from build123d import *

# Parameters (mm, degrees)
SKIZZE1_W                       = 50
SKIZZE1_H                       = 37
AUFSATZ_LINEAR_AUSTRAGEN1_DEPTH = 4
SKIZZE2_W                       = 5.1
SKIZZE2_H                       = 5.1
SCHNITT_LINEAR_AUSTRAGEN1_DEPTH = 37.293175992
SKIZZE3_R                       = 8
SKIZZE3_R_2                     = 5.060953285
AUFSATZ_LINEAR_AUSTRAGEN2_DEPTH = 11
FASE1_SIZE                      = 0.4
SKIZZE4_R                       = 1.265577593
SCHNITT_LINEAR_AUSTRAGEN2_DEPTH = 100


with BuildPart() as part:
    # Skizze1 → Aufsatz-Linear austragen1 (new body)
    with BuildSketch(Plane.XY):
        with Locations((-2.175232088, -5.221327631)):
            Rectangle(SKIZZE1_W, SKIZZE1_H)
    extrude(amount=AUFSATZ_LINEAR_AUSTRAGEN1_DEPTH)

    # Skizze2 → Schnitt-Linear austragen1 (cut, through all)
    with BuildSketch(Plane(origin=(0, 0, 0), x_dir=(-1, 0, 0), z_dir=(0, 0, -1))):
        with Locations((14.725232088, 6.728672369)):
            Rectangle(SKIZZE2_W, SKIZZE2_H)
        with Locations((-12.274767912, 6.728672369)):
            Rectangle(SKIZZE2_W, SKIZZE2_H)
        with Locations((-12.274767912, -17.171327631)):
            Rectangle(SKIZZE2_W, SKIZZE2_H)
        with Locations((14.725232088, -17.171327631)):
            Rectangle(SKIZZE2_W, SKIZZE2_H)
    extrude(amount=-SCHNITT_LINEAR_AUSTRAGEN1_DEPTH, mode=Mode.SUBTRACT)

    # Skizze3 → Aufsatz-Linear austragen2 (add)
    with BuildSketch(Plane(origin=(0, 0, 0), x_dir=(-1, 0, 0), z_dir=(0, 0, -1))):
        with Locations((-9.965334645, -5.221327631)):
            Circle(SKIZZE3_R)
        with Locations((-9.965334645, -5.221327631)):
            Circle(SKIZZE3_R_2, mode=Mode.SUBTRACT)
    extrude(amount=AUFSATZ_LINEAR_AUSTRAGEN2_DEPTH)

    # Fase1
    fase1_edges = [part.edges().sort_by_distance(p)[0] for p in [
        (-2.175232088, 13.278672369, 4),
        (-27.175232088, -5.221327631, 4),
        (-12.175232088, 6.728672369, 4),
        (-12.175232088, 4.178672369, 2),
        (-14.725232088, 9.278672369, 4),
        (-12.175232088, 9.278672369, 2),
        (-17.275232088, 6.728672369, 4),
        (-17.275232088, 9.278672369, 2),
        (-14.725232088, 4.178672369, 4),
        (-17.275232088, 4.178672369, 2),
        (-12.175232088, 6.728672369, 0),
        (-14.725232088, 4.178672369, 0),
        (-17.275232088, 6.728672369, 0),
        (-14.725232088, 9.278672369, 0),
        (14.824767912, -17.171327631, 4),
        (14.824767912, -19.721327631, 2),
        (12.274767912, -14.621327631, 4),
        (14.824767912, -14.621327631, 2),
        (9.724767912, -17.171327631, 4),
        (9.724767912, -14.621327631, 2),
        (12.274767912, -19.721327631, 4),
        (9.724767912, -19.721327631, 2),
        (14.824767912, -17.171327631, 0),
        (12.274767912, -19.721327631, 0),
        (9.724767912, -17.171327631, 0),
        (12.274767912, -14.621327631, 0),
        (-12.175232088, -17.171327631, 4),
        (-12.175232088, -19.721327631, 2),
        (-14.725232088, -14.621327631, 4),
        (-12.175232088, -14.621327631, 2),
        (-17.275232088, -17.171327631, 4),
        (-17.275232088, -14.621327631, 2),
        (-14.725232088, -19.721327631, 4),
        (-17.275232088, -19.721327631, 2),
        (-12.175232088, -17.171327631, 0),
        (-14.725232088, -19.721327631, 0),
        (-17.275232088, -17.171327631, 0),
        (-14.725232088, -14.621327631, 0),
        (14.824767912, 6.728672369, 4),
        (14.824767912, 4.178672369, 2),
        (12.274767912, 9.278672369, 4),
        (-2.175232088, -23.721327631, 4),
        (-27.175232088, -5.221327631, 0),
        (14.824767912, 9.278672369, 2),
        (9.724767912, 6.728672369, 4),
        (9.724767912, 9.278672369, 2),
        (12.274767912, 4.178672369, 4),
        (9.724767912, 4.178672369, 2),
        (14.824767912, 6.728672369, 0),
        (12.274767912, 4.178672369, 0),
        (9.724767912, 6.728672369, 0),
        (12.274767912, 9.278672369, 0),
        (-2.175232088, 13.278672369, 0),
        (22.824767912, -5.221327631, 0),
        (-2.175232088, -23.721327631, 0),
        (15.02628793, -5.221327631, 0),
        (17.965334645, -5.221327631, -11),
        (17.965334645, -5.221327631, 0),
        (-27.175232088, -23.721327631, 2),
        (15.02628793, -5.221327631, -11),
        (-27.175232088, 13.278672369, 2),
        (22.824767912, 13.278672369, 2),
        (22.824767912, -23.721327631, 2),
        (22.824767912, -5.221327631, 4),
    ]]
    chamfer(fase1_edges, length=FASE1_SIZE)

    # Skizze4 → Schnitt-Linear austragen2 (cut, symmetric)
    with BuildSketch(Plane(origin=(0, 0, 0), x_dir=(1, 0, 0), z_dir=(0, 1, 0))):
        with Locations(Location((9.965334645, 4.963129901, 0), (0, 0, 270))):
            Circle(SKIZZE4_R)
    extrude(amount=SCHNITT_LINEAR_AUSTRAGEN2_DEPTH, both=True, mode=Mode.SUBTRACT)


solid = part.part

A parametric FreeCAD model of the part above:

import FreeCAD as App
import Part
import Sketcher

V = App.Vector


def add_polygon(sketch, points):
    """Adds a closed chain of lines whose ends are joined by coincident constraints."""
    first, n = sketch.GeometryCount, len(points)
    for a, b in zip(points, points[1:] + points[:1]):
        sketch.addGeometry(Part.LineSegment(App.Vector(*a, 0), App.Vector(*b, 0)), False)
    for i in range(n):
        sketch.addConstraint(Sketcher.Constraint("Coincident", first + i, 2, first + (i + 1) % n, 1))

doc = App.newDocument("Part")
body = doc.addObject("PartDesign::Body", "Body")

# Sketch on XY plane
sketch1 = body.newObject("Sketcher::SketchObject", "Sketch")
sketch1.AttachmentSupport = (doc.getObject("XY_Plane"), [""])
sketch1.MapMode = "FlatFace"
add_polygon(sketch1, [(-27, 13), (-27, -24), (23, -24), (23, 13)])  # lines 0-3
sketch1.addConstraint([
    Sketcher.Constraint("Vertical", 0),
    Sketcher.Constraint("Horizontal", 1),
    Sketcher.Constraint("Vertical", 2),
    Sketcher.Constraint("Horizontal", 3),
    Sketcher.Constraint("DistanceX", 1, 1, 1, 2, 50.0),
    Sketcher.Constraint("DistanceY", 0, 2, 0, 1, 37.0),
    Sketcher.Constraint("DistanceX", 0, 2, -1, 1, 27.175232),
    Sketcher.Constraint("DistanceY", 0, 2, -1, 1, 23.721328),
])
pad1 = body.newObject("PartDesign::Pad", "Pad")
pad1.Profile = sketch1
pad1.Length = 4

# Sketch on XY plane
sketch2 = body.newObject("Sketcher::SketchObject", "Sketch001")
sketch2.AttachmentSupport = (doc.getObject("XY_Plane"), [""])
sketch2.MapMode = "FlatFace"
add_polygon(sketch2, [(-12, 9), (-12, 4), (-17, 4), (-17, 9)])  # lines 0-3
add_polygon(sketch2, [(15, 9), (15, 4), (10, 4), (10, 9)])  # lines 4-7
add_polygon(sketch2, [(15, -15), (15, -20), (10, -20), (10, -15)])  # lines 8-11
add_polygon(sketch2, [(-12, -15), (-12, -20), (-17, -20), (-17, -15)])  # lines 12-15
sketch2.addConstraint([
    Sketcher.Constraint("Vertical", 0),
    Sketcher.Constraint("Horizontal", 1),
    Sketcher.Constraint("Vertical", 2),
    Sketcher.Constraint("Horizontal", 3),
    Sketcher.Constraint("Vertical", 4),
    Sketcher.Constraint("Horizontal", 5),
    Sketcher.Constraint("Vertical", 6),
    Sketcher.Constraint("Horizontal", 7),
    Sketcher.Constraint("Vertical", 8),
    Sketcher.Constraint("Horizontal", 9),
    Sketcher.Constraint("Vertical", 10),
    Sketcher.Constraint("Horizontal", 11),
    Sketcher.Constraint("Vertical", 12),
    Sketcher.Constraint("Horizontal", 13),
    Sketcher.Constraint("Vertical", 14),
    Sketcher.Constraint("Horizontal", 15),
    Sketcher.Constraint("Horizontal", 1, 2, 4, 2),
    Sketcher.Constraint("Horizontal", 3, 2, 6, 2),
    Sketcher.Constraint("Horizontal", 9, 2, 12, 2),
    Sketcher.Constraint("Horizontal", 11, 2, 14, 2),
    Sketcher.Constraint("Vertical", 7, 2, 8, 2),
    Sketcher.Constraint("Vertical", 6, 2, 9, 2),
    Sketcher.Constraint("Vertical", 3, 2, 12, 2),
    Sketcher.Constraint("Vertical", 2, 2, 13, 2),
    Sketcher.Constraint("Equal", 3, 5),
    Sketcher.Constraint("Equal", 15, 0),
    Sketcher.Constraint("Equal", 6, 8),
    Sketcher.Constraint("DistanceX", 1, 2, 1, 1, 5.1),
    Sketcher.Constraint("DistanceX", 0, 2, 4, 2, 27.0),
    Sketcher.Constraint("DistanceY", 8, 2, 7, 2, 29.0),
    Sketcher.Constraint("DistanceX", 0, 2, -1, 1, 12.175232),
    Sketcher.Constraint("DistanceY", -1, 1, 0, 2, 4.178672),
])
pocket1 = body.newObject("PartDesign::Pocket", "Pocket")
pocket1.Profile = sketch2
pocket1.Type = "ThroughAll"
pocket1.Reversed = True

# Sketch on XY plane
sketch3 = body.newObject("Sketcher::SketchObject", "Sketch002")
sketch3.AttachmentSupport = (doc.getObject("XY_Plane"), [""])
sketch3.MapMode = "FlatFace"
sketch3.addGeometry([
    Part.Circle(V(10, -5, 0), V(0, 0, 1), 8),
    Part.Circle(V(10, -5, 0), V(0, 0, 1), 5),
], False)
sketch3.addConstraint([
    Sketcher.Constraint("Coincident", 1, 3, 0, 3),
    Sketcher.Constraint("Diameter", 0, 16.0),
    Sketcher.Constraint("Diameter", 1, 10.121907),
    Sketcher.Constraint("DistanceX", -1, 1, 0, 3, 9.965335),
    Sketcher.Constraint("DistanceY", 0, 3, -1, 1, 5.221328),
])
pad2 = body.newObject("PartDesign::Pad", "Pad001")
pad2.Profile = sketch3
pad2.Length = 11
pad2.Reversed = True
doc.recompute()

chamfer = body.newObject("PartDesign::Chamfer", "Chamfer")
chamfer.Base = (pad2, ["Edge1"])
chamfer.UseAllEdges = True
chamfer.Size = 0.4

# Sketch on XZ plane
sketch4 = body.newObject("Sketcher::SketchObject", "Sketch003")
sketch4.AttachmentSupport = (doc.getObject("XZ_Plane"), [""])
sketch4.MapMode = "FlatFace"
sketch4.addGeometry(Part.Circle(V(10, -5, 0), V(0, 0, 1), 1.3), False)
sketch4.addConstraint([
    Sketcher.Constraint("Diameter", 0, 2.531155),
    Sketcher.Constraint("DistanceY", 0, 3, -1, 1, 4.96313),
    Sketcher.Constraint("DistanceX", -1, 1, 0, 3, 9.965335),
])
pocket2 = body.newObject("PartDesign::Pocket", "Pocket001")
pocket2.Profile = sketch4
pocket2.Length = 200
pocket2.Midplane = True

doc.recompute()
